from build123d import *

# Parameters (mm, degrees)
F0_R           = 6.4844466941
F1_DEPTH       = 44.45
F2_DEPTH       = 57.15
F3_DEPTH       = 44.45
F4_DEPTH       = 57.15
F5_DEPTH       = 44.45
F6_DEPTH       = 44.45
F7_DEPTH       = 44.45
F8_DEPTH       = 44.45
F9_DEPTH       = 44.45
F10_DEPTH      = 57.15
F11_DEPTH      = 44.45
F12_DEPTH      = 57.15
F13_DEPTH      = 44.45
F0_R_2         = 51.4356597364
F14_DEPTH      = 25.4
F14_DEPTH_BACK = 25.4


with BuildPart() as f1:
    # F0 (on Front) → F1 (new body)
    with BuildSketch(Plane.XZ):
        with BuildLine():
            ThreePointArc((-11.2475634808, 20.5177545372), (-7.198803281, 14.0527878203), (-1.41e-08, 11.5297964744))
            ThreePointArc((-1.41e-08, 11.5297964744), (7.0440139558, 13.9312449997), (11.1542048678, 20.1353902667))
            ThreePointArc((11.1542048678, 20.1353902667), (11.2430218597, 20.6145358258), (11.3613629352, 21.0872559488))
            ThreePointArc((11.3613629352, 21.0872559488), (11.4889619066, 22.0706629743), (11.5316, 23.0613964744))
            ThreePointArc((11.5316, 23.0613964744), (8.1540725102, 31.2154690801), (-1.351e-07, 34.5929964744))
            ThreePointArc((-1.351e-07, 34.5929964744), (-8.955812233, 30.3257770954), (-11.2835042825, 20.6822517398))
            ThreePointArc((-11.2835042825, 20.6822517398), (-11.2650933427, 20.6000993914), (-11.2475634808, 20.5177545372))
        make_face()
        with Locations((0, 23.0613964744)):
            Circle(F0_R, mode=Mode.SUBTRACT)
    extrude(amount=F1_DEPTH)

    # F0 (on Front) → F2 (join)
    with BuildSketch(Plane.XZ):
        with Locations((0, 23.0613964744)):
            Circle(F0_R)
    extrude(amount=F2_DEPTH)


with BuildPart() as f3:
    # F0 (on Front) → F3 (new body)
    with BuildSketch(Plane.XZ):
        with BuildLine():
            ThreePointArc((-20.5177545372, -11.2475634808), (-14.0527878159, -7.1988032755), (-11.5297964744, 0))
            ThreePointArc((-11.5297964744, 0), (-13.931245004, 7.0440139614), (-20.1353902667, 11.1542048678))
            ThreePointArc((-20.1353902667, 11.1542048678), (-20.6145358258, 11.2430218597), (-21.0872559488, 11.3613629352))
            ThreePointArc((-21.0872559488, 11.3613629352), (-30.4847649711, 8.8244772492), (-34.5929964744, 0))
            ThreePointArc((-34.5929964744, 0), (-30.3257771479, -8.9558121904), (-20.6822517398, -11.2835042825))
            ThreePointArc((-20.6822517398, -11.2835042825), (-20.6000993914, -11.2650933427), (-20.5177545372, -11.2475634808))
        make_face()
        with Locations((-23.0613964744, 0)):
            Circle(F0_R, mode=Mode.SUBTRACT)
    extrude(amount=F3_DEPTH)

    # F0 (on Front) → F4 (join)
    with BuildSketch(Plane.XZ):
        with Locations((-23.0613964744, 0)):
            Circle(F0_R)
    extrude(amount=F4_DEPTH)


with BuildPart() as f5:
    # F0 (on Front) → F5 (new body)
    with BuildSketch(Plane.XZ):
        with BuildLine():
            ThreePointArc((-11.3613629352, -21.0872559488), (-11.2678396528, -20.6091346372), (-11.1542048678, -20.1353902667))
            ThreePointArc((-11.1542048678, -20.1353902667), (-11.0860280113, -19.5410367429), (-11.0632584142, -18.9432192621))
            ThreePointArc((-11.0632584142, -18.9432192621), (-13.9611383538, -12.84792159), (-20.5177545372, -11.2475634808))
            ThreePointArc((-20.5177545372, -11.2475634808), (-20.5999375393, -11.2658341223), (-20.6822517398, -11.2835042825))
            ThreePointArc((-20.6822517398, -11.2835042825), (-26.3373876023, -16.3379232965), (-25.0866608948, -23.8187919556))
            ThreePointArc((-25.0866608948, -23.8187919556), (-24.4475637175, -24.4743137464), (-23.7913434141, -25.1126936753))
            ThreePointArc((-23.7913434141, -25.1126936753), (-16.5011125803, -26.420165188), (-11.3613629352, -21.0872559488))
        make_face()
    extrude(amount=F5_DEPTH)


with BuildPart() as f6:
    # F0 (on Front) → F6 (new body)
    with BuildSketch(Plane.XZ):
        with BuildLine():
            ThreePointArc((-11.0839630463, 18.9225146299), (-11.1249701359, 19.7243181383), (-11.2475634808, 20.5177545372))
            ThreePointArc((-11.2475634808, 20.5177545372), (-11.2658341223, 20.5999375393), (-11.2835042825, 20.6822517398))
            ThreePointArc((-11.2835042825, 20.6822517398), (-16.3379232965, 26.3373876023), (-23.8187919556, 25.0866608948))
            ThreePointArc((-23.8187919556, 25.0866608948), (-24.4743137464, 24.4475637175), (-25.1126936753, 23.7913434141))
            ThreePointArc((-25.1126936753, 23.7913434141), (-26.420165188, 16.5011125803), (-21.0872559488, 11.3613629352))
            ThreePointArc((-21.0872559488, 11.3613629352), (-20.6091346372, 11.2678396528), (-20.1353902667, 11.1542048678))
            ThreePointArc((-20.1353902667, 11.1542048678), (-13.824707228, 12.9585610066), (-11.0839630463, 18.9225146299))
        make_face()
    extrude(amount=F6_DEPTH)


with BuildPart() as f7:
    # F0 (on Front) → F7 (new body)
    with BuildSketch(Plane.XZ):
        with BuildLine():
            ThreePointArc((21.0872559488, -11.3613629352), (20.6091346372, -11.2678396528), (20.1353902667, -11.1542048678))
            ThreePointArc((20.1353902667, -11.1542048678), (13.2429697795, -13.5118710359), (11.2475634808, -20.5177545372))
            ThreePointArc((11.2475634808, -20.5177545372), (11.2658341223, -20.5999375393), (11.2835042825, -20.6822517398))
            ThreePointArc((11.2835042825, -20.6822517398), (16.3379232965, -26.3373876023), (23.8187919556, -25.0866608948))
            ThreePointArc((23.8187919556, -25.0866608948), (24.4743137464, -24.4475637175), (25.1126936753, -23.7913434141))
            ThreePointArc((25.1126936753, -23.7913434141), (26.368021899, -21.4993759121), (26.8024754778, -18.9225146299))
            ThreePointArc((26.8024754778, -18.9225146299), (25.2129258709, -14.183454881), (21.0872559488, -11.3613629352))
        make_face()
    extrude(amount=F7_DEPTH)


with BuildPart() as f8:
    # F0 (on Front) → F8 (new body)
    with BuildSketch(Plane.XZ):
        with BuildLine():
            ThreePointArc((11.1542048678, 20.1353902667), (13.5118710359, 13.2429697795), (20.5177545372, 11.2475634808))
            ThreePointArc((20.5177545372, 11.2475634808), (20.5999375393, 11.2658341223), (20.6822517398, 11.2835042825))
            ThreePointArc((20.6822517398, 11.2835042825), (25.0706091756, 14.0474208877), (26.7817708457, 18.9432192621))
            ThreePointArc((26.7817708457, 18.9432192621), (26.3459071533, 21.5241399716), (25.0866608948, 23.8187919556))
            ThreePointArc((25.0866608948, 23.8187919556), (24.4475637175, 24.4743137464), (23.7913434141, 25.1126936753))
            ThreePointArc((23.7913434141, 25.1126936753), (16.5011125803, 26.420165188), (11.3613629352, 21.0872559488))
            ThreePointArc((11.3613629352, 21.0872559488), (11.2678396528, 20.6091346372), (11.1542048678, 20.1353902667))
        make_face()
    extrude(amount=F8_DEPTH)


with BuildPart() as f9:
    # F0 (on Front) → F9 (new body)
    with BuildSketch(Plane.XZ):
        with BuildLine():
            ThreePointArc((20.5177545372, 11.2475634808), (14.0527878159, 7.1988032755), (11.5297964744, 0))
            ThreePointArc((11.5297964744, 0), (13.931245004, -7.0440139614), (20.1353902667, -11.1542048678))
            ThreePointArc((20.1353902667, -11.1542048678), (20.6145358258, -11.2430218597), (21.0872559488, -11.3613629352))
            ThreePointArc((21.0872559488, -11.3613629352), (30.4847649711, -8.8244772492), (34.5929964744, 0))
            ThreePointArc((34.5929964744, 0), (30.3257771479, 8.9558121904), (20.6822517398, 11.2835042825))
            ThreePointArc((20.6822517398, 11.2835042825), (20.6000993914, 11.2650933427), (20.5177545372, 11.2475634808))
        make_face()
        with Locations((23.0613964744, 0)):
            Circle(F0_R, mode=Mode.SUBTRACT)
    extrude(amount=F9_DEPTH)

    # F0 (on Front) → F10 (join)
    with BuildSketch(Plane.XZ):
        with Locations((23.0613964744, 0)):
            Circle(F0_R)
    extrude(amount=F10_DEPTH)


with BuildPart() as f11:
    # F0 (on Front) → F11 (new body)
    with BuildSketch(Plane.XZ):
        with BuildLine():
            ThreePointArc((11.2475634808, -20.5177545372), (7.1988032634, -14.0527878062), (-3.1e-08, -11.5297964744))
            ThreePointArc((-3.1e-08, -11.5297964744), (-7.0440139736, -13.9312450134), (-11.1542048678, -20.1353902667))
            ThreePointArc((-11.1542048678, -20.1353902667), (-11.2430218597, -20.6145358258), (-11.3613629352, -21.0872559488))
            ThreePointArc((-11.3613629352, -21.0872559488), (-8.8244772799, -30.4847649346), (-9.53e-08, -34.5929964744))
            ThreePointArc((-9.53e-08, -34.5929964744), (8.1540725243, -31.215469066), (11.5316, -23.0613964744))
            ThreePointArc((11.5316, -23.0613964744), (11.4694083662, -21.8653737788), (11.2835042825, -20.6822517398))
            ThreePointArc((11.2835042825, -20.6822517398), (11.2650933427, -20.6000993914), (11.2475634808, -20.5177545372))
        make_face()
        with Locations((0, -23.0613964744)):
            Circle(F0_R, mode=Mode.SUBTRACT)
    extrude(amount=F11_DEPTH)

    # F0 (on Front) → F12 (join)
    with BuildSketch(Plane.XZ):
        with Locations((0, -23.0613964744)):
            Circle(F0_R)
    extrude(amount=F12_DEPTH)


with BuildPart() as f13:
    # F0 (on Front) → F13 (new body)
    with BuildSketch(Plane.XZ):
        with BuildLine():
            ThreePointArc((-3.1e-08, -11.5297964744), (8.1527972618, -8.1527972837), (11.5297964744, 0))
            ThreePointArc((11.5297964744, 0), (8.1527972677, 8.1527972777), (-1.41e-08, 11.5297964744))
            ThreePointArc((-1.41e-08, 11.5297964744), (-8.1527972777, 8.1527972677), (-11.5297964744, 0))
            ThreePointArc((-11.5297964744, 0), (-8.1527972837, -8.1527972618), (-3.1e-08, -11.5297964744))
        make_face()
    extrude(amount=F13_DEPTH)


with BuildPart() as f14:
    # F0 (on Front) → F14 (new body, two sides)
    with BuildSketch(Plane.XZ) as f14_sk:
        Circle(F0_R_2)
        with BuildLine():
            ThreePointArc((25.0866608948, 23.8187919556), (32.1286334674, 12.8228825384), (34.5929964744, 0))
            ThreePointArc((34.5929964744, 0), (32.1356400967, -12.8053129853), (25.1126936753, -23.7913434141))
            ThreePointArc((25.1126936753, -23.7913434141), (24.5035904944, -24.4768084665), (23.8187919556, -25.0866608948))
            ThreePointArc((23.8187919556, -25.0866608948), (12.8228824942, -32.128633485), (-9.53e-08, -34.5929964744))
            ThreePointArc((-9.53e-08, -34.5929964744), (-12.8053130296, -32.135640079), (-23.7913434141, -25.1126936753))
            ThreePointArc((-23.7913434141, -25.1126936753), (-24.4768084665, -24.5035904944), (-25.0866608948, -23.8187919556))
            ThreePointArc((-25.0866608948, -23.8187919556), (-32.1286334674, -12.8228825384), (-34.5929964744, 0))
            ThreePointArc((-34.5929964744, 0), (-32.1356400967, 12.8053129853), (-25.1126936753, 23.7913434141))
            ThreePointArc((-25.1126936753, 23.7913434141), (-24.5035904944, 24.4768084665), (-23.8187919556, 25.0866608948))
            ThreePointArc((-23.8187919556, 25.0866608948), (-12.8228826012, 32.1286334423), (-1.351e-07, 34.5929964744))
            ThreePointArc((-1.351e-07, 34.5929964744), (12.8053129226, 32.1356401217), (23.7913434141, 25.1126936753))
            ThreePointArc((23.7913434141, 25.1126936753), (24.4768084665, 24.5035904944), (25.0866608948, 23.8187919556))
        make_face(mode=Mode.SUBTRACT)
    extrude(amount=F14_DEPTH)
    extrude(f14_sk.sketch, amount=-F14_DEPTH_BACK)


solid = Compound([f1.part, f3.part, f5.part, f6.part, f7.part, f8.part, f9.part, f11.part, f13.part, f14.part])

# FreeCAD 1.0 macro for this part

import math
import FreeCAD as App
import Part
import Sketcher
from FreeCAD import Vector
Q = App.Units.Quantity

doc = App.newDocument("Part")
body = doc.addObject("PartDesign::Body", "Body")

# Sketch on XZ plane
sketch1 = body.newObject("Sketcher::SketchObject", "Sketch")
sketch1.AttachmentSupport = (doc.getObject("XZ_Plane"), [""])
sketch1.MapMode = "FlatFace"
sketch1.addGeometry([
    Part.ArcOfCircle(Part.Circle(Vector(0, 23.061396, 0), Vector(0, 0, 1), 11.5316), math.radians(-167.25689), math.radians(-90)),  # 0
    Part.ArcOfCircle(Part.Circle(Vector(0, 23.061396, 0), Vector(0, 0, 1), 11.5316), math.radians(-90), math.radians(-14.698824)),  # 1
    Part.ArcOfCircle(Part.Circle(Vector(18.922515, 18.943219, 0), Vector(0, 0, 1), 7.859256), math.radians(164.168809), math.radians(171.27512)),  # 2
    Part.ArcOfCircle(Part.Circle(Vector(0, 23.061396, 0), Vector(0, 0, 1), 11.5316), math.radians(-9.857247), math.radians(0)),  # 3
    Part.ArcOfCircle(Part.Circle(Vector(0, 23.061396, 0), Vector(0, 0, 1), 11.5316), math.radians(0), math.radians(90.000001)),  # 4
    Part.ArcOfCircle(Part.Circle(Vector(0, 23.061396, 0), Vector(0, 0, 1), 11.5316), math.radians(90.000001), math.radians(191.906502)),  # 5
    Part.ArcOfCircle(Part.Circle(Vector(-18.943218, 18.922515, 0), Vector(0, 0, 1), 7.859255), math.radians(11.711038), math.radians(12.938574)),  # 6
    Part.Circle(Vector(0, 23.061396, 0), Vector(0, 0, 1), 6.484447),  # 7
], False)
sketch1.addConstraint([
    Sketcher.Constraint("Coincident", 0, 2, 1, 1),
    Sketcher.Constraint("Coincident", 1, 2, 2, 2),
    Sketcher.Constraint("Coincident", 2, 1, 3, 1),
    Sketcher.Constraint("Coincident", 3, 2, 4, 1),
    Sketcher.Constraint("Coincident", 4, 2, 5, 1),
    Sketcher.Constraint("Coincident", 5, 2, 6, 2),
    Sketcher.Constraint("Coincident", 6, 1, 0, 1),
    Sketcher.Constraint("Coincident", 1, 3, 0, 3),
    Sketcher.Constraint("Coincident", 3, 3, 0, 3),
    Sketcher.Constraint("Coincident", 4, 3, 0, 3),
    Sketcher.Constraint("Coincident", 5, 3, 0, 3),
    Sketcher.Constraint("Coincident", 7, 3, 0, 3),
    Sketcher.Constraint("PointOnObject", 0, 3, -2),
    Sketcher.Constraint("PointOnObject", 0, 2, -2),
    Sketcher.Constraint("PointOnObject", 4, 2, -2),
    Sketcher.Constraint("Radius", 0, Q("0.454 in")),
    Sketcher.Constraint("Radius", 3, Q("0.454 in")),
    Sketcher.Constraint("Diameter", 7, Q("12.968893 mm")),
    Sketcher.Constraint("Radius", 2, Q("7.859256 mm")),
    Sketcher.Constraint("Radius", 6, Q("7.859255 mm")),
    Sketcher.Constraint("DistanceY", -1, 1, 2, 3, Q("18.943219 mm")),
    Sketcher.Constraint("DistanceX", 6, 3, -1, 1, Q("18.943218 mm")),
    Sketcher.Constraint("DistanceY", -1, 1, 1, 2, Q("20.13539 mm")),
    Sketcher.Constraint("DistanceY", -1, 1, 5, 2, Q("20.682252 mm")),
    Sketcher.Constraint("DistanceY", 6, 3, 3, 3, Q("4.138882 mm")),
    Sketcher.Constraint("DistanceY", 2, 1, 3, 2, Q("1.974141 mm")),
])
pad1 = body.newObject("PartDesign::Pad", "Pad")
pad1.Profile = sketch1
pad1.Length = Q("1.75 in")

# Sketch on XZ plane
sketch2 = body.newObject("Sketcher::SketchObject", "Sketch001")
sketch2.AttachmentSupport = (doc.getObject("XZ_Plane"), [""])
sketch2.MapMode = "FlatFace"
sketch2.addGeometry(Part.Circle(Vector(0, 23, 0), Vector(0, 0, 1), 6), False)
sketch2.addConstraint([
    Sketcher.Constraint("PointOnObject", 0, 3, -2),
    Sketcher.Constraint("Diameter", 0, Q("12.968893 mm")),
    Sketcher.Constraint("DistanceY", -1, 1, 0, 3, Q("23.061396 mm")),
])
pad2 = body.newObject("PartDesign::Pad", "Pad001")
pad2.Profile = sketch2
pad2.Length = Q("2.25 in")
body2 = doc.addObject("PartDesign::Body", "Body001")

# Sketch on XZ plane
sketch3 = body2.newObject("Sketcher::SketchObject", "Sketch002")
sketch3.AttachmentSupport = (doc.getObject("XZ_Plane001"), [""])
sketch3.MapMode = "FlatFace"
sketch3.addGeometry([
    Part.ArcOfCircle(Part.Circle(Vector(-23.061396, 0, 0), Vector(0, 0, 1), 11.5316), math.radians(-77.25689), math.radians(0)),  # 0
    Part.ArcOfCircle(Part.Circle(Vector(-23.061396, 0, 0), Vector(0, 0, 1), 11.5316), math.radians(0), math.radians(75.301176)),  # 1
    Part.ArcOfCircle(Part.Circle(Vector(-18.943219, 18.922515, 0), Vector(0, 0, 1), 7.859256), math.radians(-105.831191), math.radians(-98.72488)),  # 2
    Part.ArcOfCircle(Part.Circle(Vector(-23.061396, 0, 0), Vector(0, 0, 1), 11.5316), math.radians(80.142753), math.radians(180)),  # 3
    Part.ArcOfCircle(Part.Circle(Vector(-23.061396, 0, 0), Vector(0, 0, 1), 11.5316), math.radians(180), math.radians(281.906502)),  # 4
    Part.ArcOfCircle(Part.Circle(Vector(-18.922515, -18.943218, 0), Vector(0, 0, 1), 7.859255), math.radians(101.711038), math.radians(102.938574)),  # 5
    Part.Circle(Vector(-23.061396, 0, 0), Vector(0, 0, 1), 6.484447),  # 6
], False)
sketch3.addConstraint([
    Sketcher.Constraint("Coincident", 0, 2, 1, 1),
    Sketcher.Constraint("Coincident", 1, 2, 2, 2),
    Sketcher.Constraint("Coincident", 2, 1, 3, 1),
    Sketcher.Constraint("Coincident", 3, 2, 4, 1),
    Sketcher.Constraint("Coincident", 4, 2, 5, 2),
    Sketcher.Constraint("Coincident", 5, 1, 0, 1),
    Sketcher.Constraint("Coincident", 1, 3, 0, 3),
    Sketcher.Constraint("Coincident", 3, 3, 0, 3),
    Sketcher.Constraint("Coincident", 4, 3, 0, 3),
    Sketcher.Constraint("Coincident", 6, 3, 0, 3),
    Sketcher.Constraint("PointOnObject", 0, 3, -1),
    Sketcher.Constraint("PointOnObject", 0, 2, -1),
    Sketcher.Constraint("PointOnObject", 3, 2, -1),
    Sketcher.Constraint("Radius", 0, Q("0.454 in")),
    Sketcher.Constraint("Radius", 3, Q("0.454 in")),
    Sketcher.Constraint("Diameter", 6, Q("12.968893 mm")),
    Sketcher.Constraint("Radius", 2, Q("7.859256 mm")),
    Sketcher.Constraint("Radius", 5, Q("7.859255 mm")),
    Sketcher.Constraint("DistanceX", 2, 3, -1, 1, Q("18.943219 mm")),
    Sketcher.Constraint("DistanceY", 5, 3, -1, 1, Q("18.943218 mm")),
    Sketcher.Constraint("DistanceX", 1, 2, -1, 1, Q("20.13539 mm")),
    Sketcher.Constraint("DistanceX", 4, 2, -1, 1, Q("20.682252 mm")),
    Sketcher.Constraint("DistanceX", 0, 3, 5, 3, Q("4.138882 mm")),
])
pad3 = body2.newObject("PartDesign::Pad", "Pad002")
pad3.Profile = sketch3
pad3.Length = Q("1.75 in")

# Sketch on XZ plane
sketch4 = body2.newObject("Sketcher::SketchObject", "Sketch003")
sketch4.AttachmentSupport = (doc.getObject("XZ_Plane001"), [""])
sketch4.MapMode = "FlatFace"
sketch4.addGeometry(Part.Circle(Vector(-23, 0, 0), Vector(0, 0, 1), 6), False)
sketch4.addConstraint([
    Sketcher.Constraint("PointOnObject", 0, 3, -1),
    Sketcher.Constraint("Diameter", 0, Q("12.968893 mm")),
    Sketcher.Constraint("DistanceX", 0, 3, -1, 1, Q("23.061396 mm")),
])
pad4 = body2.newObject("PartDesign::Pad", "Pad003")
pad4.Profile = sketch4
pad4.Length = Q("2.25 in")
body3 = doc.addObject("PartDesign::Body", "Body002")

# Sketch on XZ plane
sketch5 = body3.newObject("Sketcher::SketchObject", "Sketch004")
sketch5.AttachmentSupport = (doc.getObject("XZ_Plane002"), [""])
sketch5.MapMode = "FlatFace"
sketch5.addGeometry([
    Part.ArcOfCircle(Part.Circle(Vector(0, -23.06, 0), Vector(0, 0, 1), 11.53), math.radians(165.3), math.radians(170.14)),  # 0
    Part.ArcOfCircle(Part.Circle(Vector(-18.92, -18.94, 0), Vector(0, 0, 1), 7.86), math.radians(-8.72), math.radians(0)),  # 1
    Part.ArcOfCircle(Part.Circle(Vector(-18.92, -18.94, 0), Vector(0, 0, 1), 7.86), math.radians(0), math.radians(102)),  # 2
    Part.ArcOfCircle(Part.Circle(Vector(-23.06, 0, 0), Vector(0, 0, 1), 11.53), math.radians(-78.09), math.radians(-77.26)),  # 3
    Part.ArcOfCircle(Part.Circle(Vector(-18.92, -18.94, 0), Vector(0, 0, 1), 7.86), math.radians(103), math.radians(218)),  # 4
    Part.ArcOfCircle(Part.Circle(Vector(0, 0, 0), Vector(0, 0, 1), 34.59), math.radians(-136.49), math.radians(-133.45)),  # 5
    Part.ArcOfCircle(Part.Circle(Vector(-18.92, -18.94, 0), Vector(0, 0, 1), 7.86), math.radians(-128), math.radians(-16)),  # 6
], False)
sketch5.addConstraint([
    Sketcher.Constraint("Coincident", 0, 1, 1, 1),
    Sketcher.Constraint("Tangent", 1, 2, 2, 1),
    Sketcher.Constraint("Coincident", 2, 2, 3, 2),
    Sketcher.Constraint("Coincident", 3, 1, 4, 1),
    Sketcher.Constraint("Coincident", 4, 2, 5, 1),
    Sketcher.Constraint("Coincident", 5, 2, 6, 1),
    Sketcher.Constraint("Coincident", 6, 2, 0, 2),
    Sketcher.Constraint("Coincident", 5, 3, -1, 1),
    Sketcher.Constraint("Coincident", 4, 3, 1, 3),
    Sketcher.Constraint("Coincident", 6, 3, 1, 3),
    Sketcher.Constraint("Equal", 1, 2),
    Sketcher.Constraint("Equal", 0, 3),
    Sketcher.Constraint("Equal", 2, 4),
    Sketcher.Constraint("Equal", 4, 6),
    Sketcher.Constraint("PointOnObject", 0, 3, -2),
    Sketcher.Constraint("PointOnObject", 3, 3, -1),
    Sketcher.Constraint("Horizontal", 6, 3, 1, 2),
    Sketcher.Constraint("Radius", 0, Q("0.454 in")),
    Sketcher.Constraint("Radius", 1, Q("7.859256 mm")),
    Sketcher.Constraint("Radius", 5, Q("34.592996 mm")),
    Sketcher.Constraint("DistanceY", 5, 2, 4, 2, Q("1.293902 mm")),
    Sketcher.Constraint("DistanceY", 1, 3, -1, 1, Q("18.943219 mm")),
    Sketcher.Constraint("DistanceY", 0, 1, -1, 1, Q("20.13539 mm")),
    Sketcher.Constraint("DistanceX", 3, 1, -1, 1, Q("20.682252 mm")),
])
pad5 = body3.newObject("PartDesign::Pad", "Pad004")
pad5.Profile = sketch5
pad5.Length = Q("1.75 in")
body4 = doc.addObject("PartDesign::Body", "Body003")

# Sketch on XZ plane
sketch6 = body4.newObject("Sketcher::SketchObject", "Sketch005")
sketch6.AttachmentSupport = (doc.getObject("XZ_Plane003"), [""])
sketch6.MapMode = "FlatFace"
sketch6.addGeometry([
    Part.ArcOfCircle(Part.Circle(Vector(-18.94, 18.92, 0), Vector(0, 0, 1), 7.86), math.radians(0), math.radians(11.71)),  # 0
    Part.ArcOfCircle(Part.Circle(Vector(0, 23.06, 0), Vector(0, 0, 1), 11.53), math.radians(-168.09), math.radians(-167.26)),  # 1
    Part.ArcOfCircle(Part.Circle(Vector(-18.94, 18.92, 0), Vector(0, 0, 1), 7.86), math.radians(13), math.radians(128)),  # 2
    Part.ArcOfCircle(Part.Circle(Vector(0, 0, 0), Vector(0, 0, 1), 34.59), math.radians(133.51), math.radians(136.55)),  # 3
    Part.ArcOfCircle(Part.Circle(Vector(-18.94, 18.92, 0), Vector(0, 0, 1), 7.86), math.radians(142), math.radians(254)),  # 4
    Part.ArcOfCircle(Part.Circle(Vector(-23.06, 0, 0), Vector(0, 0, 1), 11.53), math.radians(75.3), math.radians(80.14)),  # 5
    Part.ArcOfCircle(Part.Circle(Vector(-18.94, 18.92, 0), Vector(0, 0, 1), 7.86), math.radians(-99), math.radians(0)),  # 6
], False)
sketch6.addConstraint([
    Sketcher.Constraint("Coincident", 0, 2, 1, 2),
    Sketcher.Constraint("Coincident", 1, 1, 2, 1),
    Sketcher.Constraint("Coincident", 2, 2, 3, 1),
    Sketcher.Constraint("Coincident", 3, 2, 4, 1),
    Sketcher.Constraint("Coincident", 4, 2, 5, 2),
    Sketcher.Constraint("Coincident", 5, 1, 6, 1),
    Sketcher.Constraint("Tangent", 6, 2, 0, 1),
    Sketcher.Constraint("Coincident", 3, 3, -1, 1),
    Sketcher.Constraint("Coincident", 2, 3, 0, 3),
    Sketcher.Constraint("Coincident", 4, 3, 0, 3),
    Sketcher.Constraint("Equal", 0, 2),
    Sketcher.Constraint("Equal", 2, 4),
    Sketcher.Constraint("Equal", 1, 5),
    Sketcher.Constraint("Equal", 4, 6),
    Sketcher.Constraint("PointOnObject", 1, 3, -2),
    Sketcher.Constraint("PointOnObject", 5, 3, -1),
    Sketcher.Constraint("Horizontal", 4, 3, 6, 2),
    Sketcher.Constraint("Radius", 1, Q("0.454 in")),
    Sketcher.Constraint("Radius", 0, Q("7.859256 mm")),
    Sketcher.Constraint("Radius", 3, Q("34.592996 mm")),
    Sketcher.Constraint("DistanceX", 3, 2, 2, 2, Q("1.293902 mm")),
    Sketcher.Constraint("DistanceX", 0, 2, 6, 2, Q("0.1636 mm")),
    Sketcher.Constraint("DistanceX", 0, 3, -1, 1, Q("18.943219 mm")),
    Sketcher.Constraint("DistanceX", 5, 1, -1, 1, Q("20.13539 mm")),
])
pad6 = body4.newObject("PartDesign::Pad", "Pad005")
pad6.Profile = sketch6
pad6.Length = Q("1.75 in")
body5 = doc.addObject("PartDesign::Body", "Body004")

# Sketch on XZ plane
sketch7 = body5.newObject("Sketcher::SketchObject", "Sketch006")
sketch7.AttachmentSupport = (doc.getObject("XZ_Plane004"), [""])
sketch7.MapMode = "FlatFace"
sketch7.addGeometry([
    Part.ArcOfCircle(Part.Circle(Vector(23.06, 0, 0), Vector(0, 0, 1), 11.53), math.radians(-104.7), math.radians(-99.86)),  # 0
    Part.ArcOfCircle(Part.Circle(Vector(18.94, -18.92, 0), Vector(0, 0, 1), 7.86), math.radians(81), math.radians(192)),  # 1
    Part.ArcOfCircle(Part.Circle(Vector(0, -23.06, 0), Vector(0, 0, 1), 11.53), math.radians(11.91), math.radians(12.74)),  # 2
    Part.ArcOfCircle(Part.Circle(Vector(18.94, -18.92, 0), Vector(0, 0, 1), 7.86), math.radians(-167), math.radians(-52)),  # 3
    Part.ArcOfCircle(Part.Circle(Vector(0, 0, 0), Vector(0, 0, 1), 34.59), math.radians(-46.49), math.radians(-43.45)),  # 4
    Part.ArcOfCircle(Part.Circle(Vector(18.94, -18.92, 0), Vector(0, 0, 1), 7.86), math.radians(-38), math.radians(0)),  # 5
    Part.ArcOfCircle(Part.Circle(Vector(18.94, -18.92, 0), Vector(0, 0, 1), 7.86), math.radians(0), math.radians(74)),  # 6
], False)
sketch7.addConstraint([
    Sketcher.Constraint("Coincident", 0, 1, 1, 1),
    Sketcher.Constraint("Coincident", 1, 2, 2, 2),
    Sketcher.Constraint("Coincident", 2, 1, 3, 1),
    Sketcher.Constraint("Coincident", 3, 2, 4, 1),
    Sketcher.Constraint("Coincident", 4, 2, 5, 1),
    Sketcher.Constraint("Tangent", 5, 2, 6, 1),
    Sketcher.Constraint("Coincident", 6, 2, 0, 2),
    Sketcher.Constraint("Coincident", 4, 3, -1, 1),
    Sketcher.Constraint("Coincident", 3, 3, 1, 3),
    Sketcher.Constraint("Coincident", 5, 3, 1, 3),
    Sketcher.Constraint("Equal", 0, 2),
    Sketcher.Constraint("Equal", 1, 3),
    Sketcher.Constraint("Equal", 3, 5),
    Sketcher.Constraint("Equal", 5, 6),
    Sketcher.Constraint("PointOnObject", 0, 3, -1),
    Sketcher.Constraint("PointOnObject", 2, 3, -2),
    Sketcher.Constraint("Horizontal", 6, 3, 5, 2),
    Sketcher.Constraint("Radius", 0, Q("0.454 in")),
    Sketcher.Constraint("Radius", 1, Q("7.859256 mm")),
    Sketcher.Constraint("Radius", 4, Q("34.592996 mm")),
    Sketcher.Constraint("DistanceX", 3, 2, 4, 2, Q("1.293902 mm")),
    Sketcher.Constraint("DistanceX", -1, 1, 1, 3, Q("18.943219 mm")),
    Sketcher.Constraint("DistanceX", -1, 1, 0, 1, Q("20.13539 mm")),
    Sketcher.Constraint("DistanceY", 2, 1, -1, 1, Q("20.682252 mm")),
])
pad7 = body5.newObject("PartDesign::Pad", "Pad006")
pad7.Profile = sketch7
pad7.Length = Q("1.75 in")
body6 = doc.addObject("PartDesign::Body", "Body005")

# Sketch on XZ plane
sketch8 = body6.newObject("Sketcher::SketchObject", "Sketch007")
sketch8.AttachmentSupport = (doc.getObject("XZ_Plane005"), [""])
sketch8.MapMode = "FlatFace"
sketch8.addGeometry([
    Part.ArcOfCircle(Part.Circle(Vector(18.92, 18.94, 0), Vector(0, 0, 1), 7.86), math.radians(171), math.radians(282)),  # 0
    Part.ArcOfCircle(Part.Circle(Vector(23.06, 0, 0), Vector(0, 0, 1), 11.53), math.radians(101.91), math.radians(102.74)),  # 1
    Part.ArcOfCircle(Part.Circle(Vector(18.92, 18.94, 0), Vector(0, 0, 1), 7.86), math.radians(-77), math.radians(38)),  # 2
    Part.ArcOfCircle(Part.Circle(Vector(0, 0, 0), Vector(0, 0, 1), 34.59), math.radians(43.51), math.radians(46.55)),  # 3
    Part.ArcOfCircle(Part.Circle(Vector(18.92, 18.94, 0), Vector(0, 0, 1), 7.86), math.radians(52), math.radians(164)),  # 4
    Part.ArcOfCircle(Part.Circle(Vector(0, 23.06, 0), Vector(0, 0, 1), 11.53), math.radians(-14.7), math.radians(-9.86)),  # 5
], False)
sketch8.addConstraint([
    Sketcher.Constraint("Coincident", 0, 2, 1, 2),
    Sketcher.Constraint("Coincident", 1, 1, 2, 1),
    Sketcher.Constraint("Coincident", 2, 2, 3, 1),
    Sketcher.Constraint("Coincident", 3, 2, 4, 1),
    Sketcher.Constraint("Coincident", 4, 2, 5, 2),
    Sketcher.Constraint("Coincident", 5, 1, 0, 1),
    Sketcher.Constraint("Coincident", 3, 3, -1, 1),
    Sketcher.Constraint("Coincident", 2, 3, 0, 3),
    Sketcher.Constraint("Coincident", 4, 3, 0, 3),
    Sketcher.Constraint("Equal", 0, 2),
    Sketcher.Constraint("Equal", 2, 4),
    Sketcher.Constraint("Equal", 1, 5),
    Sketcher.Constraint("PointOnObject", 1, 3, -1),
    Sketcher.Constraint("PointOnObject", 5, 3, -2),
    Sketcher.Constraint("Radius", 1, Q("0.454 in")),
    Sketcher.Constraint("Radius", 0, Q("7.859256 mm")),
    Sketcher.Constraint("Radius", 3, Q("34.592996 mm")),
    Sketcher.Constraint("DistanceY", 2, 2, 3, 2, Q("1.293902 mm")),
    Sketcher.Constraint("DistanceY", -1, 1, 0, 3, Q("18.943219 mm")),
    Sketcher.Constraint("DistanceX", -1, 1, 1, 1, Q("20.682252 mm")),
    Sketcher.Constraint("DistanceY", -1, 1, 5, 1, Q("20.13539 mm")),
])
pad8 = body6.newObject("PartDesign::Pad", "Pad007")
pad8.Profile = sketch8
pad8.Length = Q("1.75 in")
body7 = doc.addObject("PartDesign::Body", "Body006")

# Sketch on XZ plane
sketch9 = body7.newObject("Sketcher::SketchObject", "Sketch008")
sketch9.AttachmentSupport = (doc.getObject("XZ_Plane006"), [""])
sketch9.MapMode = "FlatFace"
sketch9.addGeometry([
    Part.ArcOfCircle(Part.Circle(Vector(23.061396, 0, 0), Vector(0, 0, 1), 11.5316), math.radians(102.74311), math.radians(180)),  # 0
    Part.ArcOfCircle(Part.Circle(Vector(23.061396, 0, 0), Vector(0, 0, 1), 11.5316), math.radians(180), math.radians(255.301176)),  # 1
    Part.ArcOfCircle(Part.Circle(Vector(18.943219, -18.922515, 0), Vector(0, 0, 1), 7.859256), math.radians(74.168809), math.radians(81.27512)),  # 2
    Part.ArcOfCircle(Part.Circle(Vector(23.061396, 0, 0), Vector(0, 0, 1), 11.5316), math.radians(-99.857247), math.radians(0)),  # 3
    Part.ArcOfCircle(Part.Circle(Vector(23.061396, 0, 0), Vector(0, 0, 1), 11.5316), math.radians(0), math.radians(101.906502)),  # 4
    Part.ArcOfCircle(Part.Circle(Vector(18.922515, 18.943218, 0), Vector(0, 0, 1), 7.859255), math.radians(-78.288962), math.radians(-77.061426)),  # 5
    Part.Circle(Vector(23.061396, 0, 0), Vector(0, 0, 1), 6.484447),  # 6
], False)
sketch9.addConstraint([
    Sketcher.Constraint("Coincident", 0, 2, 1, 1),
    Sketcher.Constraint("Coincident", 1, 2, 2, 2),
    Sketcher.Constraint("Coincident", 2, 1, 3, 1),
    Sketcher.Constraint("Coincident", 3, 2, 4, 1),
    Sketcher.Constraint("Coincident", 4, 2, 5, 2),
    Sketcher.Constraint("Coincident", 5, 1, 0, 1),
    Sketcher.Constraint("Coincident", 1, 3, 0, 3),
    Sketcher.Constraint("Coincident", 3, 3, 0, 3),
    Sketcher.Constraint("Coincident", 4, 3, 0, 3),
    Sketcher.Constraint("Coincident", 6, 3, 0, 3),
    Sketcher.Constraint("PointOnObject", 0, 3, -1),
    Sketcher.Constraint("PointOnObject", 0, 2, -1),
    Sketcher.Constraint("PointOnObject", 3, 2, -1),
    Sketcher.Constraint("Radius", 0, Q("0.454 in")),
    Sketcher.Constraint("Radius", 3, Q("0.454 in")),
    Sketcher.Constraint("Diameter", 6, Q("12.968893 mm")),
    Sketcher.Constraint("Radius", 2, Q("7.859256 mm")),
    Sketcher.Constraint("Radius", 5, Q("7.859255 mm")),
    Sketcher.Constraint("DistanceX", -1, 1, 2, 3, Q("18.943219 mm")),
    Sketcher.Constraint("DistanceY", -1, 1, 5, 3, Q("18.943218 mm")),
    Sketcher.Constraint("DistanceX", -1, 1, 1, 2, Q("20.13539 mm")),
    Sketcher.Constraint("DistanceX", -1, 1, 4, 2, Q("20.682252 mm")),
    Sketcher.Constraint("DistanceX", 5, 3, 0, 3, Q("4.138882 mm")),
])
pad9 = body7.newObject("PartDesign::Pad", "Pad008")
pad9.Profile = sketch9
pad9.Length = Q("1.75 in")

# Sketch on XZ plane
sketch10 = body7.newObject("Sketcher::SketchObject", "Sketch009")
sketch10.AttachmentSupport = (doc.getObject("XZ_Plane006"), [""])
sketch10.MapMode = "FlatFace"
sketch10.addGeometry(Part.Circle(Vector(23, 0, 0), Vector(0, 0, 1), 6), False)
sketch10.addConstraint([
    Sketcher.Constraint("PointOnObject", 0, 3, -1),
    Sketcher.Constraint("Diameter", 0, Q("12.968893 mm")),
    Sketcher.Constraint("DistanceX", -1, 1, 0, 3, Q("23.061396 mm")),
])
pad10 = body7.newObject("PartDesign::Pad", "Pad009")
pad10.Profile = sketch10
pad10.Length = Q("2.25 in")
body8 = doc.addObject("PartDesign::Body", "Body007")

# Sketch on XZ plane
sketch11 = body8.newObject("Sketcher::SketchObject", "Sketch010")
sketch11.AttachmentSupport = (doc.getObject("XZ_Plane007"), [""])
sketch11.MapMode = "FlatFace"
sketch11.addGeometry([
    Part.ArcOfCircle(Part.Circle(Vector(0, -23.061396, 0), Vector(0, 0, 1), 11.5316), math.radians(12.74311), math.radians(90)),  # 0
    Part.ArcOfCircle(Part.Circle(Vector(0, -23.061396, 0), Vector(0, 0, 1), 11.5316), math.radians(90), math.radians(165.301176)),  # 1
    Part.ArcOfCircle(Part.Circle(Vector(-18.922515, -18.943219, 0), Vector(0, 0, 1), 7.859256), math.radians(-15.831191), math.radians(-8.72488)),  # 2
    Part.ArcOfCircle(Part.Circle(Vector(0, -23.061396, 0), Vector(0, 0, 1), 11.5316), math.radians(170.142753), math.radians(360)),  # 3
    Part.ArcOfCircle(Part.Circle(Vector(0, -23.061396, 0), Vector(0, 0, 1), 11.5316), math.radians(0), math.radians(11.906502)),  # 4
    Part.ArcOfCircle(Part.Circle(Vector(18.943218, -18.922515, 0), Vector(0, 0, 1), 7.859255), math.radians(-168.288962), math.radians(-167.061426)),  # 5
    Part.Circle(Vector(0, -23.061396, 0), Vector(0, 0, 1), 6.484447),  # 6
], False)
sketch11.addConstraint([
    Sketcher.Constraint("Coincident", 0, 2, 1, 1),
    Sketcher.Constraint("Coincident", 1, 2, 2, 2),
    Sketcher.Constraint("Coincident", 2, 1, 3, 1),
    Sketcher.Constraint("Coincident", 3, 2, 4, 1),
    Sketcher.Constraint("Coincident", 4, 2, 5, 2),
    Sketcher.Constraint("Coincident", 5, 1, 0, 1),
    Sketcher.Constraint("Coincident", 1, 3, 0, 3),
    Sketcher.Constraint("Coincident", 3, 3, 0, 3),
    Sketcher.Constraint("Coincident", 4, 3, 0, 3),
    Sketcher.Constraint("Coincident", 6, 3, 0, 3),
    Sketcher.Constraint("PointOnObject", 0, 3, -2),
    Sketcher.Constraint("PointOnObject", 0, 2, -2),
    Sketcher.Constraint("Radius", 0, Q("0.454 in")),
    Sketcher.Constraint("Radius", 3, Q("0.454 in")),
    Sketcher.Constraint("Diameter", 6, Q("12.968893 mm")),
    Sketcher.Constraint("Radius", 2, Q("7.859256 mm")),
    Sketcher.Constraint("Radius", 5, Q("7.859255 mm")),
    Sketcher.Constraint("DistanceY", 2, 3, -1, 1, Q("18.943219 mm")),
    Sketcher.Constraint("DistanceX", -1, 1, 5, 3, Q("18.943218 mm")),
    Sketcher.Constraint("DistanceY", 1, 2, -1, 1, Q("20.13539 mm")),
    Sketcher.Constraint("DistanceY", 4, 2, -1, 1, Q("20.682252 mm")),
    Sketcher.Constraint("DistanceY", 0, 3, 5, 3, Q("4.138882 mm")),
    Sketcher.Constraint("DistanceY", 3, 2, 5, 3, Q("4.138882 mm")),
])
pad11 = body8.newObject("PartDesign::Pad", "Pad010")
pad11.Profile = sketch11
pad11.Length = Q("1.75 in")

# Sketch on XZ plane
sketch12 = body8.newObject("Sketcher::SketchObject", "Sketch011")
sketch12.AttachmentSupport = (doc.getObject("XZ_Plane007"), [""])
sketch12.MapMode = "FlatFace"
sketch12.addGeometry(Part.Circle(Vector(0, -23, 0), Vector(0, 0, 1), 6), False)
sketch12.addConstraint([
    Sketcher.Constraint("PointOnObject", 0, 3, -2),
    Sketcher.Constraint("Diameter", 0, Q("12.968893 mm")),
    Sketcher.Constraint("DistanceY", 0, 3, -1, 1, Q("23.061396 mm")),
])
pad12 = body8.newObject("PartDesign::Pad", "Pad011")
pad12.Profile = sketch12
pad12.Length = Q("2.25 in")
body9 = doc.addObject("PartDesign::Body", "Body008")

# Sketch on XZ plane
sketch13 = body9.newObject("Sketcher::SketchObject", "Sketch012")
sketch13.AttachmentSupport = (doc.getObject("XZ_Plane008"), [""])
sketch13.MapMode = "FlatFace"
sketch13.addGeometry([
    Part.ArcOfCircle(Part.Circle(Vector(0, 0, 0), Vector(0, 0, 1), 12), math.radians(0), math.radians(90)),
    Part.ArcOfCircle(Part.Circle(Vector(0, 0, 0), Vector(0, 0, 1), 12), math.radians(90), math.radians(180)),
    Part.ArcOfCircle(Part.Circle(Vector(0, 0, 0), Vector(0, 0, 1), 12), math.radians(180), math.radians(360)),
], False)
sketch13.addConstraint([
    Sketcher.Constraint("Tangent", 0, 2, 1, 1),
    Sketcher.Constraint("Tangent", 1, 2, 2, 1),
    Sketcher.Constraint("Tangent", 2, 2, 0, 1),
    Sketcher.Constraint("Coincident", 0, 3, -1, 1),
    Sketcher.Constraint("PointOnObject", 0, 2, -2),
    Sketcher.Constraint("PointOnObject", 1, 2, -1),
    Sketcher.Constraint("PointOnObject", 2, 2, -1),
    Sketcher.Constraint("Radius", 0, Q("11.529796 mm")),
])
pad13 = body9.newObject("PartDesign::Pad", "Pad012")
pad13.Profile = sketch13
pad13.Length = Q("1.75 in")
body10 = doc.addObject("PartDesign::Body", "Body009")

# Sketch on XZ plane
sketch14 = body10.newObject("Sketcher::SketchObject", "Sketch013")
sketch14.AttachmentSupport = (doc.getObject("XZ_Plane009"), [""])
sketch14.MapMode = "FlatFace"
sketch14.addGeometry([
    Part.Circle(Vector(0, 0, 0), Vector(0, 0, 1), 51.4),  # 0
    Part.ArcOfCircle(Part.Circle(Vector(18.9, 18.9, 0), Vector(0, 0, 1), 7.9), math.radians(38.34), math.radians(51.72)),  # 1
    Part.ArcOfCircle(Part.Circle(Vector(0, 0, 0), Vector(0, 0, 1), 34.6), math.radians(0), math.radians(44)),  # 2
    Part.ArcOfCircle(Part.Circle(Vector(0, 0, 0), Vector(0, 0, 1), 34.6), math.radians(-43), math.radians(0)),  # 3
    Part.ArcOfCircle(Part.Circle(Vector(18.9, -18.9, 0), Vector(0, 0, 1), 7.9), math.radians(-51.66), math.radians(-38.28)),  # 4
    Part.ArcOfCircle(Part.Circle(Vector(0, 0, 0), Vector(0, 0, 1), 34.6), math.radians(-90), math.radians(-46)),  # 5
    Part.ArcOfCircle(Part.Circle(Vector(0, 0, 0), Vector(0, 0, 1), 34.6), math.radians(-133), math.radians(-90)),  # 6
    Part.ArcOfCircle(Part.Circle(Vector(-18.9, -18.9, 0), Vector(0, 0, 1), 7.9), math.radians(-141.66), math.radians(-128.28)),  # 7
    Part.ArcOfCircle(Part.Circle(Vector(0, 0, 0), Vector(0, 0, 1), 34.6), math.radians(180), math.radians(224)),  # 8
    Part.ArcOfCircle(Part.Circle(Vector(0, 0, 0), Vector(0, 0, 1), 34.6), math.radians(137), math.radians(180)),  # 9
    Part.ArcOfCircle(Part.Circle(Vector(-18.9, 18.9, 0), Vector(0, 0, 1), 7.9), math.radians(128.34), math.radians(141.72)),  # 10
    Part.ArcOfCircle(Part.Circle(Vector(0, 0, 0), Vector(0, 0, 1), 34.6), math.radians(90), math.radians(134)),  # 11
    Part.ArcOfCircle(Part.Circle(Vector(0, 0, 0), Vector(0, 0, 1), 34.6), math.radians(47), math.radians(90)),  # 12
], False)
sketch14.addConstraint([
    Sketcher.Constraint("Coincident", 1, 1, 2, 2),
    Sketcher.Constraint("Tangent", 2, 1, 3, 2),
    Sketcher.Constraint("Coincident", 3, 1, 4, 2),
    Sketcher.Constraint("Coincident", 4, 1, 5, 2),
    Sketcher.Constraint("Tangent", 5, 1, 6, 2),
    Sketcher.Constraint("Coincident", 6, 1, 7, 2),
    Sketcher.Constraint("Coincident", 7, 1, 8, 2),
    Sketcher.Constraint("Tangent", 8, 1, 9, 2),
    Sketcher.Constraint("Coincident", 9, 1, 10, 2),
    Sketcher.Constraint("Coincident", 10, 1, 11, 2),
    Sketcher.Constraint("Tangent", 11, 1, 12, 2),
    Sketcher.Constraint("Coincident", 12, 1, 1, 2),
    Sketcher.Constraint("Coincident", 0, 3, -1, 1),
    Sketcher.Constraint("Coincident", 2, 3, -1, 1),
    Sketcher.Constraint("Coincident", 5, 3, -1, 1),
    Sketcher.Constraint("Coincident", 8, 3, -1, 1),
    Sketcher.Constraint("Coincident", 11, 3, -1, 1),
    Sketcher.Constraint("Equal", 2, 3),
    Sketcher.Constraint("Equal", 1, 4),
    Sketcher.Constraint("Equal", 3, 5),
    Sketcher.Constraint("Equal", 5, 6),
    Sketcher.Constraint("Equal", 4, 7),
    Sketcher.Constraint("Equal", 6, 8),
    Sketcher.Constraint("Equal", 8, 9),
    Sketcher.Constraint("Equal", 7, 10),
    Sketcher.Constraint("Equal", 9, 11),
    Sketcher.Constraint("Equal", 11, 12),
    Sketcher.Constraint("Symmetric", 1, 3, 7, 3, -1, 1),
    Sketcher.Constraint("Symmetric", 4, 3, 10, 3, -1, 1),
    Sketcher.Constraint("PointOnObject", 2, 1, -1),
    Sketcher.Constraint("PointOnObject", 5, 1, -2),
    Sketcher.Constraint("PointOnObject", 8, 1, -1),
    Sketcher.Constraint("PointOnObject", 11, 1, -2),
    Sketcher.Constraint("Diameter", 0, Q("102.871319 mm")),
    Sketcher.Constraint("Radius", 1, Q("7.859256 mm")),
    Sketcher.Constraint("Radius", 2, Q("34.592996 mm")),
    Sketcher.Constraint("DistanceX", 4, 1, 3, 1, Q("1.293902 mm")),
    Sketcher.Constraint("DistanceY", 6, 1, 7, 1, Q("1.293902 mm")),
    Sketcher.Constraint("DistanceY", -1, 1, 1, 3, Q("18.943219 mm")),
    Sketcher.Constraint("DistanceX", -1, 1, 4, 3, Q("18.943219 mm")),
])
pad14 = body10.newObject("PartDesign::Pad", "Pad013")
pad14.Profile = sketch14
pad14.Type = "TwoLengths"
pad14.Length = Q("1 in")
pad14.Length2 = Q("1 in")

doc.recompute()
